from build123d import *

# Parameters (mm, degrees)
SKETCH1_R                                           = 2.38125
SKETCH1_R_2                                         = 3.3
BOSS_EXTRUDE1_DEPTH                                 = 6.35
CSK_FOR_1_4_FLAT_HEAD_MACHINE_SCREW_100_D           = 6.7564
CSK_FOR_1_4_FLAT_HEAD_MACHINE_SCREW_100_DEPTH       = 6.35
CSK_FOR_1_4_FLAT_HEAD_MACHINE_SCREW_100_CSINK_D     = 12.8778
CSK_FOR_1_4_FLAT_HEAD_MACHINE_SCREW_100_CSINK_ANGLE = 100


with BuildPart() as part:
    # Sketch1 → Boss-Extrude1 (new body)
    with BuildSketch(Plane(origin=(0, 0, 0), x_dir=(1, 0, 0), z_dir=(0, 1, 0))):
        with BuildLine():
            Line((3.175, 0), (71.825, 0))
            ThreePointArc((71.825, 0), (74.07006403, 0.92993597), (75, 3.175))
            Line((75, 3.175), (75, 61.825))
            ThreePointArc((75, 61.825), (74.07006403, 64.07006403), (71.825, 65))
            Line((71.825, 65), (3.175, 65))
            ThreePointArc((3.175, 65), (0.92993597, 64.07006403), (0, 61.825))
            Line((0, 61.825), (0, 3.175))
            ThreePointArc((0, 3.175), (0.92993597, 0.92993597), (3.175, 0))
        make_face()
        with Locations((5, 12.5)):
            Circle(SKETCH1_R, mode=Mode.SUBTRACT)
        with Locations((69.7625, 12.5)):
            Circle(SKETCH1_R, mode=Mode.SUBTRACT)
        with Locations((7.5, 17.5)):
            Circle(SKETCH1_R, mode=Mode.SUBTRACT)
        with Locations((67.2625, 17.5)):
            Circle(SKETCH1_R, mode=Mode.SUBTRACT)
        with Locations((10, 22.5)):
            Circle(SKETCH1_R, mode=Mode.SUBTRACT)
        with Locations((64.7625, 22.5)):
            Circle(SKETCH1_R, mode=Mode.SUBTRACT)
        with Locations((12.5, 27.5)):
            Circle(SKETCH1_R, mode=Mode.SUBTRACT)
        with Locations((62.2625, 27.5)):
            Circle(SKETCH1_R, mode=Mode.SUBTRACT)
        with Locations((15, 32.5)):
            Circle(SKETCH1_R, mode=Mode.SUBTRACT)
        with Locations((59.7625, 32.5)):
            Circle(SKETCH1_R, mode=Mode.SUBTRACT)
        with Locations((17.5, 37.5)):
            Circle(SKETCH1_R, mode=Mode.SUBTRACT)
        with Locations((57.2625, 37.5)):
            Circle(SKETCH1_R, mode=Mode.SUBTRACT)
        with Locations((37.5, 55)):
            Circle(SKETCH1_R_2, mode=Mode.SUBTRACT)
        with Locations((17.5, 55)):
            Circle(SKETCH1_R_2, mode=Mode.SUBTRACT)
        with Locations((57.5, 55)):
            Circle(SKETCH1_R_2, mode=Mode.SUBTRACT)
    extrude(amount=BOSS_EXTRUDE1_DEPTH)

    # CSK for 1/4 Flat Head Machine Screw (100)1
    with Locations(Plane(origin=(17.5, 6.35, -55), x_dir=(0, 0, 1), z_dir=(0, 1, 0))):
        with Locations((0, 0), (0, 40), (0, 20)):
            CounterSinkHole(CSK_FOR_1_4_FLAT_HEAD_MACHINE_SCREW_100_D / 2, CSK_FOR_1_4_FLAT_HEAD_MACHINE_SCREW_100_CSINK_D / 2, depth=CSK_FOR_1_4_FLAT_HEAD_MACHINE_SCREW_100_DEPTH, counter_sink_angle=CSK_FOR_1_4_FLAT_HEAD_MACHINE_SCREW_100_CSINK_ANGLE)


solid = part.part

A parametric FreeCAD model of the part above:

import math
import FreeCAD as App
import Part
import Sketcher

V = App.Vector
Q = App.Units.Quantity

doc = App.newDocument("Part")
body = doc.addObject("PartDesign::Body", "Body")

sketch1 = body.newObject("Sketcher::SketchObject", "Sketch")
sketch1.AttachmentSupport = (doc.getObject("XZ_Plane"), [""])
sketch1.MapMode = "FlatFace"
sketch1.addGeometry(Part.LineSegment(V(3.2, 0, 0), V(71.8, 0, 0)), False)
sketch1.addGeometry(Part.ArcOfCircle(Part.Circle(V(71.8, -3.2, 0), V(0, 0, 1), 3.2), math.radians(0), math.radians(90)), False)
sketch1.addGeometry(Part.LineSegment(V(75, -3.2, 0), V(75, -61.8, 0)), False)
sketch1.addGeometry(Part.ArcOfCircle(Part.Circle(V(71.8, -61.8, 0), V(0, 0, 1), 3.2), math.radians(-90), math.radians(0)), False)
sketch1.addGeometry(Part.LineSegment(V(71.8, -65, 0), V(3.2, -65, 0)), False)
sketch1.addGeometry(Part.ArcOfCircle(Part.Circle(V(3.2, -61.8, 0), V(0, 0, 1), 3.2), math.radians(-180), math.radians(-90)), False)
sketch1.addGeometry(Part.LineSegment(V(0, -61.8, 0), V(0, -3.2, 0)), False)
sketch1.addGeometry(Part.ArcOfCircle(Part.Circle(V(3.2, -3.2, 0), V(0, 0, 1), 3.2), math.radians(90), math.radians(180)), False)
sketch1.addGeometry(Part.Circle(V(5, -12.5, 0), V(0, 0, 1), 2.4), False)
sketch1.addGeometry(Part.Circle(V(7.5, -17.5, 0), V(0, 0, 1), 2.4), False)
sketch1.addGeometry(Part.Circle(V(10, -22.5, 0), V(0, 0, 1), 2.4), False)
sketch1.addGeometry(Part.Circle(V(12.5, -27.5, 0), V(0, 0, 1), 2.4), False)
sketch1.addGeometry(Part.Circle(V(15, -32.5, 0), V(0, 0, 1), 2.4), False)
sketch1.addGeometry(Part.Circle(V(69.8, -12.5, 0), V(0, 0, 1), 2.4), False)
sketch1.addGeometry(Part.Circle(V(67.3, -17.5, 0), V(0, 0, 1), 2.4), False)
sketch1.addGeometry(Part.Circle(V(62.3, -27.5, 0), V(0, 0, 1), 2.4), False)
sketch1.addGeometry(Part.Circle(V(64.8, -22.5, 0), V(0, 0, 1), 2.4), False)
sketch1.addGeometry(Part.Circle(V(59.8, -32.5, 0), V(0, 0, 1), 2.4), False)
sketch1.addGeometry(Part.Circle(V(17.5, -37.5, 0), V(0, 0, 1), 2.4), False)
sketch1.addGeometry(Part.Circle(V(17.5, -55, 0), V(0, 0, 1), 3.3), False)
sketch1.addGeometry(Part.Circle(V(57.3, -37.5, 0), V(0, 0, 1), 2.4), False)
sketch1.addGeometry(Part.Circle(V(37.5, -55, 0), V(0, 0, 1), 3.3), False)
sketch1.addGeometry(Part.Circle(V(57.5, -55, 0), V(0, 0, 1), 3.3), False)
sketch1.addConstraint(Sketcher.Constraint("Tangent", 0, 2, 1, 2))
sketch1.addConstraint(Sketcher.Constraint("Tangent", 1, 1, 2, 1))
sketch1.addConstraint(Sketcher.Constraint("Tangent", 2, 2, 3, 2))
sketch1.addConstraint(Sketcher.Constraint("Tangent", 3, 1, 4, 1))
sketch1.addConstraint(Sketcher.Constraint("Tangent", 4, 2, 5, 2))
sketch1.addConstraint(Sketcher.Constraint("Tangent", 5, 1, 6, 1))
sketch1.addConstraint(Sketcher.Constraint("Tangent", 6, 2, 7, 2))
sketch1.addConstraint(Sketcher.Constraint("Tangent", 7, 1, 0, 1))
sketch1.addConstraint(Sketcher.Constraint("Horizontal", 0))
sketch1.addConstraint(Sketcher.Constraint("Vertical", 2))
sketch1.addConstraint(Sketcher.Constraint("Horizontal", 4))
sketch1.addConstraint(Sketcher.Constraint("Vertical", 6))
sketch1.addConstraint(Sketcher.Constraint("Equal", 1, 3))
sketch1.addConstraint(Sketcher.Constraint("Equal", 3, 5))
sketch1.addConstraint(Sketcher.Constraint("Equal", 5, 7))
sketch1.addConstraint(Sketcher.Constraint("Equal", 8, 9))
sketch1.addConstraint(Sketcher.Constraint("Equal", 9, 10))
sketch1.addConstraint(Sketcher.Constraint("Equal", 10, 11))
sketch1.addConstraint(Sketcher.Constraint("Equal", 11, 12))
sketch1.addConstraint(Sketcher.Constraint("Equal", 12, 13))
sketch1.addConstraint(Sketcher.Constraint("Equal", 13, 14))
sketch1.addConstraint(Sketcher.Constraint("Equal", 14, 15))
sketch1.addConstraint(Sketcher.Constraint("Equal", 15, 16))
sketch1.addConstraint(Sketcher.Constraint("Equal", 16, 17))
sketch1.addConstraint(Sketcher.Constraint("Equal", 17, 18))
sketch1.addConstraint(Sketcher.Constraint("Equal", 18, 20))
sketch1.addConstraint(Sketcher.Constraint("Equal", 19, 21))
sketch1.addConstraint(Sketcher.Constraint("Equal", 21, 22))
sketch1.addConstraint(Sketcher.Constraint("PointOnObject", 0, 2, -1))
sketch1.addConstraint(Sketcher.Constraint("PointOnObject", 5, 1, -2))
sketch1.addConstraint(Sketcher.Constraint("Horizontal", 8, 3, 13, 3))
sketch1.addConstraint(Sketcher.Constraint("Horizontal", 9, 3, 14, 3))
sketch1.addConstraint(Sketcher.Constraint("Horizontal", 11, 3, 15, 3))
sketch1.addConstraint(Sketcher.Constraint("Horizontal", 10, 3, 16, 3))
sketch1.addConstraint(Sketcher.Constraint("Horizontal", 12, 3, 17, 3))
sketch1.addConstraint(Sketcher.Constraint("Horizontal", 18, 3, 20, 3))
sketch1.addConstraint(Sketcher.Constraint("Horizontal", 19, 3, 21, 3))
sketch1.addConstraint(Sketcher.Constraint("Horizontal", 21, 3, 22, 3))
sketch1.addConstraint(Sketcher.Constraint("Vertical", 18, 3, 19, 3))
sketch1.addConstraint(Sketcher.Constraint("Diameter", 8, Q("0.1875 in")))
sketch1.addConstraint(Sketcher.Constraint("Radius", 1, Q("0.125 in")))
sketch1.addConstraint(Sketcher.Constraint("Diameter", 19, 6.6))
sketch1.addConstraint(Sketcher.Constraint("DistanceX", 22, 3, 15, 3, Q("0.1875 in")))
sketch1.addConstraint(Sketcher.Constraint("DistanceX", 0, 1, 0, 2, 68.65))
sketch1.addConstraint(Sketcher.Constraint("DistanceY", 2, 2, 2, 1, 58.65))
sketch1.addConstraint(Sketcher.Constraint("DistanceX", -1, 1, 8, 3, 5.0))
sketch1.addConstraint(Sketcher.Constraint("DistanceY", 8, 3, -1, 1, 12.5))
sketch1.addConstraint(Sketcher.Constraint("DistanceX", -1, 1, 9, 3, 7.5))
sketch1.addConstraint(Sketcher.Constraint("DistanceY", 9, 3, -1, 1, 17.5))
sketch1.addConstraint(Sketcher.Constraint("DistanceX", -1, 1, 10, 3, 10.0))
sketch1.addConstraint(Sketcher.Constraint("DistanceY", 10, 3, -1, 1, 22.5))
sketch1.addConstraint(Sketcher.Constraint("DistanceX", -1, 1, 11, 3, 12.5))
sketch1.addConstraint(Sketcher.Constraint("DistanceY", 11, 3, -1, 1, 27.5))
sketch1.addConstraint(Sketcher.Constraint("DistanceX", -1, 1, 12, 3, 15.0))
sketch1.addConstraint(Sketcher.Constraint("DistanceY", 12, 3, -1, 1, 32.5))
sketch1.addConstraint(Sketcher.Constraint("DistanceX", -1, 1, 13, 3, 69.7625))
sketch1.addConstraint(Sketcher.Constraint("DistanceX", -1, 1, 14, 3, 67.2625))
sketch1.addConstraint(Sketcher.Constraint("DistanceX", -1, 1, 15, 3, 62.2625))
sketch1.addConstraint(Sketcher.Constraint("DistanceX", -1, 1, 16, 3, 64.7625))
sketch1.addConstraint(Sketcher.Constraint("DistanceX", -1, 1, 17, 3, 59.7625))
sketch1.addConstraint(Sketcher.Constraint("DistanceX", -1, 1, 18, 3, 17.5))
sketch1.addConstraint(Sketcher.Constraint("DistanceY", 18, 3, -1, 1, 37.5))
sketch1.addConstraint(Sketcher.Constraint("DistanceY", 19, 3, -1, 1, 55.0))
sketch1.addConstraint(Sketcher.Constraint("DistanceX", -1, 1, 20, 3, 57.2625))
sketch1.addConstraint(Sketcher.Constraint("DistanceX", -1, 1, 21, 3, 37.5))
pad1 = body.newObject("PartDesign::Pad", "Pad")
pad1.Profile = sketch1
pad1.Length = Q("0.25 in")
pad1.Reversed = True

sketch2 = body.newObject("Sketcher::SketchObject", "Sketch001")
sketch2.AttachmentSupport = (doc.getObject("XZ_Plane"), [""])
sketch2.MapMode = "FlatFace"
sketch2.AttachmentOffset = App.Placement(V(0, 0, -0.25 * 25.4), App.Rotation())
sketch2.addGeometry(Part.Circle(V(17.5, -55, 0), V(0, 0, 1), 3.4), False)
sketch2.addGeometry(Part.Circle(V(57.5, -55, 0), V(0, 0, 1), 3.4), False)
sketch2.addGeometry(Part.Circle(V(37.5, -55, 0), V(0, 0, 1), 3.4), False)
sketch2.addConstraint(Sketcher.Constraint("Equal", 0, 1))
sketch2.addConstraint(Sketcher.Constraint("Equal", 1, 2))
sketch2.addConstraint(Sketcher.Constraint("Horizontal", 0, 3, 1, 3))
sketch2.addConstraint(Sketcher.Constraint("Horizontal", 1, 3, 2, 3))
sketch2.addConstraint(Sketcher.Constraint("Diameter", 0, Q("0.266 in")))
sketch2.addConstraint(Sketcher.Constraint("DistanceX", -1, 1, 0, 3, 17.5))
sketch2.addConstraint(Sketcher.Constraint("DistanceY", 0, 3, -1, 1, 55.0))
sketch2.addConstraint(Sketcher.Constraint("DistanceX", -1, 1, 1, 3, 57.5))
sketch2.addConstraint(Sketcher.Constraint("DistanceX", -1, 1, 2, 3, 37.5))
doc.recompute()
hole = body.newObject("PartDesign::Hole", "Hole")
hole.Profile = sketch2
hole.ThreadType = "None"
hole.Diameter = Q("0.266 in")
hole.DepthType = "Dimension"
hole.Depth = Q("0.25 in")
hole.DrillPoint = "Flat"
hole.HoleCutType = "Countersink"
hole.HoleCutDiameter = Q("0.507 in")
hole.HoleCutCountersinkAngle = 100
hole.Reversed = True

doc.recompute()
